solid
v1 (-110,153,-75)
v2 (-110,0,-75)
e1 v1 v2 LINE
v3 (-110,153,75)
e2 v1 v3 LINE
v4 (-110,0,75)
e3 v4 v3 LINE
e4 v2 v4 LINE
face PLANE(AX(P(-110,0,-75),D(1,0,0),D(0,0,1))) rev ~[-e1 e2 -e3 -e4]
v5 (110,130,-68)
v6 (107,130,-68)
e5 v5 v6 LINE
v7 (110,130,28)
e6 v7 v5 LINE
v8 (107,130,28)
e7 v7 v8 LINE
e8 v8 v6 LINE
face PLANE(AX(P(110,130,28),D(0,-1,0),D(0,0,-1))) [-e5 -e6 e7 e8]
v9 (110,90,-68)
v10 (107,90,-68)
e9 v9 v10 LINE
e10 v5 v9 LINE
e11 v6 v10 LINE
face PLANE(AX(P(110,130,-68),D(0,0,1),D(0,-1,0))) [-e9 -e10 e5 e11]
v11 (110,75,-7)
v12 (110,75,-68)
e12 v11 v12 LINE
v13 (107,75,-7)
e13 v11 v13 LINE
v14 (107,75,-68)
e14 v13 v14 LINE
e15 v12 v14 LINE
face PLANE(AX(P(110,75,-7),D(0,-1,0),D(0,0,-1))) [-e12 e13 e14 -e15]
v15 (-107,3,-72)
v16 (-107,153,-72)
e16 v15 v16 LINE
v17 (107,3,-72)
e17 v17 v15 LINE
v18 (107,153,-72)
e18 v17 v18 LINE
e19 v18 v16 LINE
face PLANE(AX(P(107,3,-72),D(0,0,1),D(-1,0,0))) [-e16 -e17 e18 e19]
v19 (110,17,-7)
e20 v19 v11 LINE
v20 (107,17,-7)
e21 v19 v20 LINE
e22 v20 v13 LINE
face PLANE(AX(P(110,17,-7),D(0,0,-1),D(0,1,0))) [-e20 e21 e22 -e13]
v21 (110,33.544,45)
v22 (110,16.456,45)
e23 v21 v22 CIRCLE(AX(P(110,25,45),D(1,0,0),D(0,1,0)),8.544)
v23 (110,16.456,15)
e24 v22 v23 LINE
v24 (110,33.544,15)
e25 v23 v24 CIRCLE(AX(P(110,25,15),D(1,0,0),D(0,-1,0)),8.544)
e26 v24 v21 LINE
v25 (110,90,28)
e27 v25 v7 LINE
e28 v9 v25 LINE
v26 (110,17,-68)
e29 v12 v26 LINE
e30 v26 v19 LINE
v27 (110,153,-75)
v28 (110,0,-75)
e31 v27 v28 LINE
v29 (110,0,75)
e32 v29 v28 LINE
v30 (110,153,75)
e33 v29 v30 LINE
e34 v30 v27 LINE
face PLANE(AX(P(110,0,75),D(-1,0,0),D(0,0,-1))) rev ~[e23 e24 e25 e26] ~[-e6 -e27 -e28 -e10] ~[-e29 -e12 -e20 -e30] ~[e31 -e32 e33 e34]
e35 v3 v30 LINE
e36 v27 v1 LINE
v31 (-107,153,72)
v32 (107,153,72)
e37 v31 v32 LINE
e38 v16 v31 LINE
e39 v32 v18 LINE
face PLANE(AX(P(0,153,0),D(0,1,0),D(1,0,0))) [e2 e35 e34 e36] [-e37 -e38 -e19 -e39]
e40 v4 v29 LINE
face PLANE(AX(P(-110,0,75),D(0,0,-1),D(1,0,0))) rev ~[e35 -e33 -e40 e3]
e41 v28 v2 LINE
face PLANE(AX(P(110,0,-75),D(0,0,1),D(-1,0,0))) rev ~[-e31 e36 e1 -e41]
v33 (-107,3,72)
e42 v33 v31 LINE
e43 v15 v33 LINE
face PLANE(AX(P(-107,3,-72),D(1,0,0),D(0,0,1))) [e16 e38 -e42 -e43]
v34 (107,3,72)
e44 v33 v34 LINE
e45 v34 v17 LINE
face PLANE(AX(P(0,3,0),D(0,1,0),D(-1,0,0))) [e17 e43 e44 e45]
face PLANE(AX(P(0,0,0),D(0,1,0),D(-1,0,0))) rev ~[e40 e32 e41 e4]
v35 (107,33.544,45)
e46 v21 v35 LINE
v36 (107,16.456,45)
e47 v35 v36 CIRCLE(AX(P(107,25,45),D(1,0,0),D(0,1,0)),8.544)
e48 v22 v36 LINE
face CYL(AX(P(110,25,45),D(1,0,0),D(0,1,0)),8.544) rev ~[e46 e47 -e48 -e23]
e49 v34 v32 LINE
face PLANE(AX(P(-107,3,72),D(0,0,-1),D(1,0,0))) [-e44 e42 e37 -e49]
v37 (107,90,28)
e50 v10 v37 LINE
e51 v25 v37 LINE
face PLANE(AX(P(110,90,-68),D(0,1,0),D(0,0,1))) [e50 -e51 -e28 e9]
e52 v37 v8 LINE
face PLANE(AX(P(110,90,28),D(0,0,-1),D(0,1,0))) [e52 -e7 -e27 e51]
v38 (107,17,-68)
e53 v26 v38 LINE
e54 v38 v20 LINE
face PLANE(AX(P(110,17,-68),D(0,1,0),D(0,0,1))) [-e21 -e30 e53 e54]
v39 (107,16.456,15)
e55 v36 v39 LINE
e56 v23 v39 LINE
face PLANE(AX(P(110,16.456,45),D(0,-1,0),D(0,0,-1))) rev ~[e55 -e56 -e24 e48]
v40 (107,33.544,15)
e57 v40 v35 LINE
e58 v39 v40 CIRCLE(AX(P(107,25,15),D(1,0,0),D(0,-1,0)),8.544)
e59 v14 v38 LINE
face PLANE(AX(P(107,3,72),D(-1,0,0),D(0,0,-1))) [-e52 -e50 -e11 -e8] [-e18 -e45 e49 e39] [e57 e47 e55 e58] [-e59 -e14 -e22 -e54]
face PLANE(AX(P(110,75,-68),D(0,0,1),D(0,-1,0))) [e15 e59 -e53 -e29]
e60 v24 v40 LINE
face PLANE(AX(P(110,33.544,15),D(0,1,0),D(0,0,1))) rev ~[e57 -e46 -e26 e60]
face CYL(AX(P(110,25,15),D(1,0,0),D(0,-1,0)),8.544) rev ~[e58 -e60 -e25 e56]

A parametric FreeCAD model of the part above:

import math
import FreeCAD as App
import Part
import Sketcher
from FreeCAD import Vector


def add_polygon(sketch, points):
    """Adds a closed chain of lines whose ends are joined by coincident constraints."""
    first, n = sketch.GeometryCount, len(points)
    for a, b in zip(points, points[1:] + points[:1]):
        sketch.addGeometry(Part.LineSegment(App.Vector(*a, 0), App.Vector(*b, 0)), False)
    for i in range(n):
        sketch.addConstraint(Sketcher.Constraint("Coincident", first + i, 2, first + (i + 1) % n, 1))

doc = App.newDocument("Part")
body = doc.addObject("PartDesign::Body", "Body")

sketch1 = body.newObject("Sketcher::SketchObject", "Sketch")
sketch1.AttachmentSupport = (doc.getObject("XZ_Plane"), [""])
sketch1.MapMode = "FlatFace"
add_polygon(sketch1, [(-110, -75), (-110, 75), (110, 75), (110, -75)])
sketch1.addConstraint(Sketcher.Constraint("Vertical", 0))
sketch1.addConstraint(Sketcher.Constraint("Horizontal", 1))
sketch1.addConstraint(Sketcher.Constraint("Vertical", 2))
sketch1.addConstraint(Sketcher.Constraint("Horizontal", 3))
sketch1.addConstraint(Sketcher.Constraint("Symmetric", 0, 2, 2, 2, -1, 1))
sketch1.addConstraint(Sketcher.Constraint("DistanceX", 1, 1, 1, 2, 220.0))
sketch1.addConstraint(Sketcher.Constraint("DistanceY", 0, 1, 0, 2, 150.0))
pad1 = body.newObject("PartDesign::Pad", "Pad")
pad1.Profile = sketch1
pad1.Length = 3
pad1.Reversed = True

sketch2 = body.newObject("Sketcher::SketchObject", "Sketch001")
sketch2.AttachmentSupport = (doc.getObject("XZ_Plane"), [""])
sketch2.MapMode = "FlatFace"
sketch2.AttachmentOffset = App.Placement(Vector(0, 0, -3), App.Rotation())
add_polygon(sketch2, [(-110, 75), (110, 75), (110, -75), (-110, -75)])
add_polygon(sketch2, [(107, 72), (-107, 72), (-107, -72), (107, -72)])
sketch2.addConstraint(Sketcher.Constraint("Horizontal", 0))
sketch2.addConstraint(Sketcher.Constraint("Vertical", 1))
sketch2.addConstraint(Sketcher.Constraint("Horizontal", 2))
sketch2.addConstraint(Sketcher.Constraint("Vertical", 3))
sketch2.addConstraint(Sketcher.Constraint("Horizontal", 4))
sketch2.addConstraint(Sketcher.Constraint("Vertical", 5))
sketch2.addConstraint(Sketcher.Constraint("Horizontal", 6))
sketch2.addConstraint(Sketcher.Constraint("Vertical", 7))
sketch2.addConstraint(Sketcher.Constraint("Symmetric", 0, 2, 2, 2, -1, 1))
sketch2.addConstraint(Sketcher.Constraint("Symmetric", 4, 2, 6, 2, -1, 1))
sketch2.addConstraint(Sketcher.Constraint("DistanceX", 4, 2, 4, 1, 214.0))
sketch2.addConstraint(Sketcher.Constraint("DistanceY", 5, 2, 5, 1, 144.0))
sketch2.addConstraint(Sketcher.Constraint("DistanceX", 0, 1, 0, 2, 220.0))
sketch2.addConstraint(Sketcher.Constraint("DistanceY", 1, 2, 1, 1, 150.0))
pad2 = body.newObject("PartDesign::Pad", "Pad001")
pad2.Profile = sketch2
pad2.Length = 150
pad2.Reversed = True

sketch3 = body.newObject("Sketcher::SketchObject", "Sketch002")
sketch3.AttachmentSupport = (doc.getObject("YZ_Plane"), [""])
sketch3.MapMode = "FlatFace"
sketch3.AttachmentOffset = App.Placement(Vector(0, 0, 110), App.Rotation())
add_polygon(sketch3, [(130, -68), (130, 28), (90, 28), (90, -68)])
add_polygon(sketch3, [(75, -68), (75, -7), (17, -7), (17, -68)])
sketch3.addGeometry(Part.ArcOfCircle(Part.Circle(Vector(25, 45, 0), Vector(0, 0, 1), 9), math.radians(0), math.radians(180)), False)
sketch3.addGeometry(Part.LineSegment(Vector(16, 45, 0), Vector(16, 15, 0)), False)
sketch3.addGeometry(Part.ArcOfCircle(Part.Circle(Vector(25, 15, 0), Vector(0, 0, 1), 9), math.radians(180), math.radians(360)), False)
sketch3.addGeometry(Part.LineSegment(Vector(34, 15, 0), Vector(34, 45, 0)), False)
sketch3.addConstraint(Sketcher.Constraint("Tangent", 8, 2, 9, 1))
sketch3.addConstraint(Sketcher.Constraint("Tangent", 9, 2, 10, 1))
sketch3.addConstraint(Sketcher.Constraint("Tangent", 10, 2, 11, 1))
sketch3.addConstraint(Sketcher.Constraint("Tangent", 11, 2, 8, 1))
sketch3.addConstraint(Sketcher.Constraint("Vertical", 0))
sketch3.addConstraint(Sketcher.Constraint("Horizontal", 1))
sketch3.addConstraint(Sketcher.Constraint("Vertical", 2))
sketch3.addConstraint(Sketcher.Constraint("Horizontal", 3))
sketch3.addConstraint(Sketcher.Constraint("Vertical", 4))
sketch3.addConstraint(Sketcher.Constraint("Horizontal", 5))
sketch3.addConstraint(Sketcher.Constraint("Vertical", 6))
sketch3.addConstraint(Sketcher.Constraint("Horizontal", 7))
sketch3.addConstraint(Sketcher.Constraint("Vertical", 9))
sketch3.addConstraint(Sketcher.Constraint("Vertical", 11))
sketch3.addConstraint(Sketcher.Constraint("Horizontal", 3, 2, 6, 2))
sketch3.addConstraint(Sketcher.Constraint("DistanceX", 1, 2, 1, 1, 40.0))
sketch3.addConstraint(Sketcher.Constraint("DistanceX", 5, 2, 5, 1, 58.0))
sketch3.addConstraint(Sketcher.Constraint("DistanceY", 0, 1, 0, 2, 96.0))
sketch3.addConstraint(Sketcher.Constraint("DistanceY", 4, 1, 4, 2, 61.0))
sketch3.addConstraint(Sketcher.Constraint("DistanceY", 9, 2, 9, 1, 30.0))
sketch3.addConstraint(Sketcher.Constraint("DistanceX", -1, 1, 8, 3, 25.0))
sketch3.addConstraint(Sketcher.Constraint("Radius", 8, 8.544))
sketch3.addConstraint(Sketcher.Constraint("DistanceY", -1, 1, 8, 3, 45.0))
sketch3.addConstraint(Sketcher.Constraint("DistanceX", -1, 1, 0, 2, 130.0))
sketch3.addConstraint(Sketcher.Constraint("DistanceY", -1, 1, 0, 2, 28.0))
sketch3.addConstraint(Sketcher.Constraint("DistanceX", -1, 1, 4, 2, 75.0))
pocket1 = body.newObject("PartDesign::Pocket", "Pocket")
pocket1.Profile = sketch3
pocket1.Length = 3

doc.recompute()
